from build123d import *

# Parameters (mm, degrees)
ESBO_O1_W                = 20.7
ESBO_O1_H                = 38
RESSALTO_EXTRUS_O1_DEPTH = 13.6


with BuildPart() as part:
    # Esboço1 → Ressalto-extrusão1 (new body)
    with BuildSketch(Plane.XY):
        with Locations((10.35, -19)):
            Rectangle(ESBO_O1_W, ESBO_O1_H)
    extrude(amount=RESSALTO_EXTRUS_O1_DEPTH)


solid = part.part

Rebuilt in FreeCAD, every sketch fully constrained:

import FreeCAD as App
import Part
import Sketcher
Q = App.Units.Quantity


def add_polygon(sketch, points):
    """Adds a closed chain of lines whose ends are joined by coincident constraints."""
    first, n = sketch.GeometryCount, len(points)
    for a, b in zip(points, points[1:] + points[:1]):
        sketch.addGeometry(Part.LineSegment(App.Vector(*a, 0), App.Vector(*b, 0)), False)
    for i in range(n):
        sketch.addConstraint(Sketcher.Constraint("Coincident", first + i, 2, first + (i + 1) % n, 1))

doc = App.newDocument("Part")
body = doc.addObject("PartDesign::Body", "Body")

sketch1 = body.newObject("Sketcher::SketchObject", "Sketch")
sketch1.AttachmentSupport = (doc.getObject("XY_Plane"), [""])
sketch1.MapMode = "FlatFace"
add_polygon(sketch1, [(0, 0), (0, -38), (21, -38), (21, 0)])
sketch1.addConstraint(Sketcher.Constraint("Vertical", 0))
sketch1.addConstraint(Sketcher.Constraint("Horizontal", 1))
sketch1.addConstraint(Sketcher.Constraint("Vertical", 2))
sketch1.addConstraint(Sketcher.Constraint("Horizontal", 3))
sketch1.addConstraint(Sketcher.Constraint("Coincident", 3, 2, -1, 1))
sketch1.addConstraint(Sketcher.Constraint("DistanceY", 0, 2, 0, 1, Q("38 mm")))
sketch1.addConstraint(Sketcher.Constraint("DistanceX", 1, 1, 1, 2, Q("20.7 mm")))
pad1 = body.newObject("PartDesign::Pad", "Pad")
pad1.Profile = sketch1
pad1.Length = 13.6

doc.recompute()
